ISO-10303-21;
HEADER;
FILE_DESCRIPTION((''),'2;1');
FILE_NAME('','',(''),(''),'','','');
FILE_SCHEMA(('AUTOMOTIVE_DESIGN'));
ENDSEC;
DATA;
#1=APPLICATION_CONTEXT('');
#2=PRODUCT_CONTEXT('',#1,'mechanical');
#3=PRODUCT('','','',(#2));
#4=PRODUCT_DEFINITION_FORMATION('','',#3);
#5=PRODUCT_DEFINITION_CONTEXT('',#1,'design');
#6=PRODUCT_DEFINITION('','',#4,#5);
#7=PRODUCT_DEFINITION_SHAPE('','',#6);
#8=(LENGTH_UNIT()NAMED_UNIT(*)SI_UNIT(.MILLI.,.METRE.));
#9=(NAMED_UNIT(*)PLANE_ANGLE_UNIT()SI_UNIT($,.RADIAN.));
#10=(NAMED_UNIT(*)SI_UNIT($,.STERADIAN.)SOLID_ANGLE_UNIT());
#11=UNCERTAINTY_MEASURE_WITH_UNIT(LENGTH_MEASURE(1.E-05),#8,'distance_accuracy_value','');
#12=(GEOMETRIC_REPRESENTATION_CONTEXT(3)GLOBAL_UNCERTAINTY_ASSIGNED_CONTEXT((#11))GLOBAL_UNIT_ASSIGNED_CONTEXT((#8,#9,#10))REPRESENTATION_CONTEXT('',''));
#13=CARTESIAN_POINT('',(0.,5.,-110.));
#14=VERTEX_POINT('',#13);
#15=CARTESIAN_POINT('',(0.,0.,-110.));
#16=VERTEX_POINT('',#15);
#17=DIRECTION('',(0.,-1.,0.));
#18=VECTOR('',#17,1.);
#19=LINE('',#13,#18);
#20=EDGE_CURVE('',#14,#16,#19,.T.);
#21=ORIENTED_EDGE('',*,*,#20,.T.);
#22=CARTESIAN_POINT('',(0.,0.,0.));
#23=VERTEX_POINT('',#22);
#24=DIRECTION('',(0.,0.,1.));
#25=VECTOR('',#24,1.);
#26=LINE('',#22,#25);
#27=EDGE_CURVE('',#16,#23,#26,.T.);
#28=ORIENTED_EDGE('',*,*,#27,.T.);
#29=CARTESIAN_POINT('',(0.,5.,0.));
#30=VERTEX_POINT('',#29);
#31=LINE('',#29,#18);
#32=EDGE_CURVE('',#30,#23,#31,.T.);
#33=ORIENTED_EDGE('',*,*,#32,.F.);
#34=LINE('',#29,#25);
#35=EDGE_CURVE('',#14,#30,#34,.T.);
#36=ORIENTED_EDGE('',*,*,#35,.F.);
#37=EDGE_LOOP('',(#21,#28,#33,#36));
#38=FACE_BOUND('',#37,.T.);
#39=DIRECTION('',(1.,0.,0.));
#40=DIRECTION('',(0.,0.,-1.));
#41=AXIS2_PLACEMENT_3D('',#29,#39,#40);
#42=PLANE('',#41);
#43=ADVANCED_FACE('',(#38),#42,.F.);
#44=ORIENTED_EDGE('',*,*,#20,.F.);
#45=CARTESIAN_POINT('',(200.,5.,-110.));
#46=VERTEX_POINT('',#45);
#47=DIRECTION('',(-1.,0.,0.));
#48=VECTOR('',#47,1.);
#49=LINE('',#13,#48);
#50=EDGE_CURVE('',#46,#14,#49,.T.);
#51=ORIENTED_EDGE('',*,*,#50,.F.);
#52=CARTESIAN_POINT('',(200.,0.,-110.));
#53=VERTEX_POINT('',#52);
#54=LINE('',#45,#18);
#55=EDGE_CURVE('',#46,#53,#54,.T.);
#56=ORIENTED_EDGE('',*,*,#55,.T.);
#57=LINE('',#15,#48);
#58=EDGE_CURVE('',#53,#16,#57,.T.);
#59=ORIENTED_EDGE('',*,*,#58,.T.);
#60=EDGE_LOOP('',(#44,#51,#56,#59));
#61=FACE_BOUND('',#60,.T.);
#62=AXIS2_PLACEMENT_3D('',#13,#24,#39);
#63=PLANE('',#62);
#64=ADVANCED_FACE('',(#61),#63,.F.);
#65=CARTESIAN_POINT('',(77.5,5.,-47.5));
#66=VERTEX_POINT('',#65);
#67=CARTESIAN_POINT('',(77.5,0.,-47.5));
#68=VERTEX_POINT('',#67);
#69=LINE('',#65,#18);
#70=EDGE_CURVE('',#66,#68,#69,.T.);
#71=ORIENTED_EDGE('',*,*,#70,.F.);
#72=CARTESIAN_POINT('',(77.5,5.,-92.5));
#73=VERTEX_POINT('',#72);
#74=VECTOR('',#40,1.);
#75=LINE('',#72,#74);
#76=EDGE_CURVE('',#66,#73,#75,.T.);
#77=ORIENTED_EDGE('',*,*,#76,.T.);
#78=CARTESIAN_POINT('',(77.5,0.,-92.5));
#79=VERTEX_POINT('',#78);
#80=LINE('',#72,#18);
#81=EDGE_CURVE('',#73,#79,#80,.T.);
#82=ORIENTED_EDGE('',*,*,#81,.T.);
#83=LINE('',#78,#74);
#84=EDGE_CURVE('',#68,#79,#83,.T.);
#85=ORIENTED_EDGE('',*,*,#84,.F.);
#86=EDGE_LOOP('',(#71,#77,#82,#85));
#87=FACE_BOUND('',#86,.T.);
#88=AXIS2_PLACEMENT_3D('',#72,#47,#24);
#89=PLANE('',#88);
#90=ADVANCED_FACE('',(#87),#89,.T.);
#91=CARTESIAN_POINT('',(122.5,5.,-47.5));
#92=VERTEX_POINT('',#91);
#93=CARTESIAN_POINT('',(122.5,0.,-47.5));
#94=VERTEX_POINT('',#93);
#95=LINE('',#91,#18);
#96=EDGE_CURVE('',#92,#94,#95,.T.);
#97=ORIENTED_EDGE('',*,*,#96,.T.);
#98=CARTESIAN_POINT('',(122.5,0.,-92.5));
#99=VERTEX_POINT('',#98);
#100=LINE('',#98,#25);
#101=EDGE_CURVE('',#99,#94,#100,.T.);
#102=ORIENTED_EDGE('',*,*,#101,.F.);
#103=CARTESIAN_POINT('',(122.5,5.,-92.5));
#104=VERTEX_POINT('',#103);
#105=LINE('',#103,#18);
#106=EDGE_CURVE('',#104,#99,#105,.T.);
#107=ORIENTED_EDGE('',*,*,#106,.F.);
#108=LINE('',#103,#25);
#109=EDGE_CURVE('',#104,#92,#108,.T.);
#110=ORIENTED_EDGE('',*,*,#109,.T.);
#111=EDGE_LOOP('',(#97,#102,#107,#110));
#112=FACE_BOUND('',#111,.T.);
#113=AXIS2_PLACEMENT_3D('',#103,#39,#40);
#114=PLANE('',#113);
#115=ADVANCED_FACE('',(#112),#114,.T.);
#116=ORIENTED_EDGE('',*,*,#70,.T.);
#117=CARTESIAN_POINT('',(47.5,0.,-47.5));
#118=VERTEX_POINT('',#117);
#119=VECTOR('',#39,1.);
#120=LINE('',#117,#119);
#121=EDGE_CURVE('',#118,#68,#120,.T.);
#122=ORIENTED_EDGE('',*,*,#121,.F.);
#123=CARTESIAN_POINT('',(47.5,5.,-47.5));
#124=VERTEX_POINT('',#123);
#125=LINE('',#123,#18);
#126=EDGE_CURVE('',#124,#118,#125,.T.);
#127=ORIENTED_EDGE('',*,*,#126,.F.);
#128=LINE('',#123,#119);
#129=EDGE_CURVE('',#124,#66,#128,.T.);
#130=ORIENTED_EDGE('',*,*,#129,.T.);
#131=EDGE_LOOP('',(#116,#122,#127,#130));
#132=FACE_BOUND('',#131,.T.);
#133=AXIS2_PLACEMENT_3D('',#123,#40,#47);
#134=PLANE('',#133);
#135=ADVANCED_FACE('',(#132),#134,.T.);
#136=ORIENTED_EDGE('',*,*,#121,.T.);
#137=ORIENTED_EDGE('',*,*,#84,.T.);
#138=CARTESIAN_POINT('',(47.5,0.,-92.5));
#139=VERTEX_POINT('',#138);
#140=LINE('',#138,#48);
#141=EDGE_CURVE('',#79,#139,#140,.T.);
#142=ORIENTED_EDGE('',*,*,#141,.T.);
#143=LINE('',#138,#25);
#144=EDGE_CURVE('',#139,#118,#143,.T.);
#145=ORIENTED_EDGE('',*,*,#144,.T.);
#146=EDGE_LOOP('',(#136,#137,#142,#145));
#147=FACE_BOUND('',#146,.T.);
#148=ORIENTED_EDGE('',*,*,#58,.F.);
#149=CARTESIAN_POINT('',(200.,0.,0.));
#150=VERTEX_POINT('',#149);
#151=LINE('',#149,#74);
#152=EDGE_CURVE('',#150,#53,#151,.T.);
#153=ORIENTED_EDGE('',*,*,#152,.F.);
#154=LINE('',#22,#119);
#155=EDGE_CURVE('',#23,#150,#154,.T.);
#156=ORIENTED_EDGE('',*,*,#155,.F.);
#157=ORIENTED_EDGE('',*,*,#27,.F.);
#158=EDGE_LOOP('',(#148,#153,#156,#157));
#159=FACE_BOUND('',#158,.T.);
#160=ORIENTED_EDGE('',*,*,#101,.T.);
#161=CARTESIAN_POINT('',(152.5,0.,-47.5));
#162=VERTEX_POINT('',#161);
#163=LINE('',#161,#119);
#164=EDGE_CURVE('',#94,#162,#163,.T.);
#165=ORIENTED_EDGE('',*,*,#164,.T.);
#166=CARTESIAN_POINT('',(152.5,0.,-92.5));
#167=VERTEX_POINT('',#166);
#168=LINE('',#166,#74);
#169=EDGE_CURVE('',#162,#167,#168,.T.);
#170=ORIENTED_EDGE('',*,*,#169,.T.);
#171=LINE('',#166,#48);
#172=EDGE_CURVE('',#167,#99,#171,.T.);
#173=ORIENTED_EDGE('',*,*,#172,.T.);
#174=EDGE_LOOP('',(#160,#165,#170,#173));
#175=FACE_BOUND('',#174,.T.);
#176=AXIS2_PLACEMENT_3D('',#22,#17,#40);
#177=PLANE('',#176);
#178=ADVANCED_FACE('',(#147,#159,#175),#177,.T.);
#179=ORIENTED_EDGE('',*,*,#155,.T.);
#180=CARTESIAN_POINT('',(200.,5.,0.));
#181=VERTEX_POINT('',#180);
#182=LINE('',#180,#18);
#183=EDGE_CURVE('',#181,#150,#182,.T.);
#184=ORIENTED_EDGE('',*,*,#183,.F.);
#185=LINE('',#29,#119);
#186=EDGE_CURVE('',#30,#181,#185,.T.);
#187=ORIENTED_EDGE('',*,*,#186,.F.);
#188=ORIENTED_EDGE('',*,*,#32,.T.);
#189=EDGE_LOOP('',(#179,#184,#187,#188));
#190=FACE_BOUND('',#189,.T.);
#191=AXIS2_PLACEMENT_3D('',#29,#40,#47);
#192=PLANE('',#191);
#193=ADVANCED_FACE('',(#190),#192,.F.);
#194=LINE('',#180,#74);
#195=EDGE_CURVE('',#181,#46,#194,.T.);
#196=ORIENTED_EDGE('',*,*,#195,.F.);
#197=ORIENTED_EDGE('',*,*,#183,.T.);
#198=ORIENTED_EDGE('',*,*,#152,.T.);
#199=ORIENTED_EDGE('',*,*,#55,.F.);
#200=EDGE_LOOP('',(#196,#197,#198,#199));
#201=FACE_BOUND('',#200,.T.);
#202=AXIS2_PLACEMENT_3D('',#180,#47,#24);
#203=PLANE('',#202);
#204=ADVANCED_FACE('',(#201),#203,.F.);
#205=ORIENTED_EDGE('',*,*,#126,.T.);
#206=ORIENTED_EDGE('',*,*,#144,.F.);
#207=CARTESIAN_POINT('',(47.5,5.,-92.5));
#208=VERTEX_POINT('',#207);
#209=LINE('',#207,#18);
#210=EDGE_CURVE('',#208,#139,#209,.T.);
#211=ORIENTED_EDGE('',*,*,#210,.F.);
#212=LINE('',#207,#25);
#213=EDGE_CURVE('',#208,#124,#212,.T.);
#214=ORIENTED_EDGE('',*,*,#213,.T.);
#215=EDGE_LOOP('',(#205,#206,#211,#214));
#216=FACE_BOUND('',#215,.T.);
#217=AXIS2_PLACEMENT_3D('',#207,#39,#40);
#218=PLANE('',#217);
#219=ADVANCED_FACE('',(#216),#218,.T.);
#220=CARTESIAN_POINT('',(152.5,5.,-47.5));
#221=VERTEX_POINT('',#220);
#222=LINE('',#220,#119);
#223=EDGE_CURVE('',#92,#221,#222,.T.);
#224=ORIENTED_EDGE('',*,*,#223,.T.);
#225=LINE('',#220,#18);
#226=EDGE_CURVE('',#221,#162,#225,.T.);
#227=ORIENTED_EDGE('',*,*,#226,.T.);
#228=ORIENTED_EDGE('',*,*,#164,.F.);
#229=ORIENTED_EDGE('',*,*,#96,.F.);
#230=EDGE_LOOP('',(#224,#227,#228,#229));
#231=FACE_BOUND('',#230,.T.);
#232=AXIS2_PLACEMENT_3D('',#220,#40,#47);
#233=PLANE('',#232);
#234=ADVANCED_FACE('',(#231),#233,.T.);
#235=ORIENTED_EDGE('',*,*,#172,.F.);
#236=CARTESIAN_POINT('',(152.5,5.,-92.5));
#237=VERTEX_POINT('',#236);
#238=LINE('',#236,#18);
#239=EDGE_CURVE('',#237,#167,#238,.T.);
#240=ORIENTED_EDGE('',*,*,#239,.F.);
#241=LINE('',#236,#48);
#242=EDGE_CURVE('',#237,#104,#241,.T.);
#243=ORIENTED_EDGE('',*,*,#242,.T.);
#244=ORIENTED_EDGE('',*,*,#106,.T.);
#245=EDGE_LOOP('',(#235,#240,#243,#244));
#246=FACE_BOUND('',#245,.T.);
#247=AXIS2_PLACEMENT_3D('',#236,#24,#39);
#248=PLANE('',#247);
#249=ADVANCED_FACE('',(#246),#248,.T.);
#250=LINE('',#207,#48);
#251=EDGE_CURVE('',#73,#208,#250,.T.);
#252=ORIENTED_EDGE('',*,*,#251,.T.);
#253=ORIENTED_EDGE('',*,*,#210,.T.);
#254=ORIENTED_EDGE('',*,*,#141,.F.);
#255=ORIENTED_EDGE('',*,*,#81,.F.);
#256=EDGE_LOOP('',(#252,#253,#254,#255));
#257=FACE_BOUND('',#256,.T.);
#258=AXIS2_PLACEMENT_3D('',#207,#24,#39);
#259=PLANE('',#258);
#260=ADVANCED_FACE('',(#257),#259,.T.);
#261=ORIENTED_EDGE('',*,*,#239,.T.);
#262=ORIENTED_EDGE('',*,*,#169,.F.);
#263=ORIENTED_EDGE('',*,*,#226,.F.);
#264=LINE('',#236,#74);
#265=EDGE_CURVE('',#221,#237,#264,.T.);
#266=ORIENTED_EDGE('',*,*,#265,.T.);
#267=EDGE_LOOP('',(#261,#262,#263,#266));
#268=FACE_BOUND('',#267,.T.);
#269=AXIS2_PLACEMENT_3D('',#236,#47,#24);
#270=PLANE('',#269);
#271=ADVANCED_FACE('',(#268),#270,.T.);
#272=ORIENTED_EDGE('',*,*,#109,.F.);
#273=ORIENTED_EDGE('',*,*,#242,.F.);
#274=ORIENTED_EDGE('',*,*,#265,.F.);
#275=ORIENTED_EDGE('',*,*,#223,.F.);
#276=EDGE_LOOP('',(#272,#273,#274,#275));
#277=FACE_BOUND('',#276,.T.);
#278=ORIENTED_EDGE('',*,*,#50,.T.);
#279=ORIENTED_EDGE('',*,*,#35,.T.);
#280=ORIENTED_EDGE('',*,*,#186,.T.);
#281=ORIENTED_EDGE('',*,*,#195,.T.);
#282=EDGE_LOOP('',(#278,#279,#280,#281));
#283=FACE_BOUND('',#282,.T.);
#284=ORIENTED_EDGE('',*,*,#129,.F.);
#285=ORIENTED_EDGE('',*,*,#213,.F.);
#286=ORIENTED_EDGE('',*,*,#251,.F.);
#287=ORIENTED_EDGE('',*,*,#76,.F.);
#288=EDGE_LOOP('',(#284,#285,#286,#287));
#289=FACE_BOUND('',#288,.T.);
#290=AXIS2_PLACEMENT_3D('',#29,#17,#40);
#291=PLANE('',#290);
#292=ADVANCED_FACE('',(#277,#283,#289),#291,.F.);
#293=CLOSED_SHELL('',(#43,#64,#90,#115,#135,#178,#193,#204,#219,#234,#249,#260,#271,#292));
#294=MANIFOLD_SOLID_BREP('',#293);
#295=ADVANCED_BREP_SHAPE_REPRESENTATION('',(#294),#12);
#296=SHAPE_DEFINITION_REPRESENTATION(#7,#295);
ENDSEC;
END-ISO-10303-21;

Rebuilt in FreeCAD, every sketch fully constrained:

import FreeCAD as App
import Part
import Sketcher

V = App.Vector
Q = App.Units.Quantity

doc = App.newDocument("Part")
body = doc.addObject("PartDesign::Body", "Body")

sketch1 = body.newObject("Sketcher::SketchObject", "Sketch")
sketch1.AttachmentSupport = (doc.getObject("XZ_Plane"), [""])
sketch1.MapMode = "FlatFace"
sketch1.addGeometry([
    Part.LineSegment(V(0, -110, 0), V(0, 0, 0)),
    Part.LineSegment(V(0, 0, 0), V(200, 0, 0)),
    Part.LineSegment(V(200, 0, 0), V(200, -110, 0)),
    Part.LineSegment(V(200, -110, 0), V(0, -110, 0)),
    Part.LineSegment(V(78, -48, 0), V(48, -48, 0)),
    Part.LineSegment(V(48, -48, 0), V(48, -92, 0)),
    Part.LineSegment(V(48, -92, 0), V(78, -92, 0)),
    Part.LineSegment(V(78, -92, 0), V(78, -48, 0)),
    Part.LineSegment(V(152, -48, 0), V(122, -48, 0)),
    Part.LineSegment(V(122, -48, 0), V(122, -92, 0)),
    Part.LineSegment(V(122, -92, 0), V(152, -92, 0)),
    Part.LineSegment(V(152, -92, 0), V(152, -48, 0)),
], False)
sketch1.addConstraint([
    Sketcher.Constraint("Coincident", 0, 2, 1, 1),
    Sketcher.Constraint("Coincident", 1, 2, 2, 1),
    Sketcher.Constraint("Coincident", 2, 2, 3, 1),
    Sketcher.Constraint("Coincident", 3, 2, 0, 1),
    Sketcher.Constraint("Coincident", 4, 2, 5, 1),
    Sketcher.Constraint("Coincident", 5, 2, 6, 1),
    Sketcher.Constraint("Coincident", 6, 2, 7, 1),
    Sketcher.Constraint("Coincident", 7, 2, 4, 1),
    Sketcher.Constraint("Coincident", 8, 2, 9, 1),
    Sketcher.Constraint("Coincident", 9, 2, 10, 1),
    Sketcher.Constraint("Coincident", 10, 2, 11, 1),
    Sketcher.Constraint("Coincident", 11, 2, 8, 1),
    Sketcher.Constraint("Vertical", 0),
    Sketcher.Constraint("Horizontal", 1),
    Sketcher.Constraint("Vertical", 2),
    Sketcher.Constraint("Horizontal", 3),
    Sketcher.Constraint("Horizontal", 4),
    Sketcher.Constraint("Vertical", 5),
    Sketcher.Constraint("Horizontal", 6),
    Sketcher.Constraint("Vertical", 7),
    Sketcher.Constraint("Horizontal", 8),
    Sketcher.Constraint("Vertical", 9),
    Sketcher.Constraint("Horizontal", 10),
    Sketcher.Constraint("Vertical", 11),
    Sketcher.Constraint("Coincident", 0, 2, -1, 1),
    Sketcher.Constraint("Horizontal", 7, 2, 8, 2),
    Sketcher.Constraint("Horizontal", 6, 2, 9, 2),
    Sketcher.Constraint("Equal", 6, 8),
    Sketcher.Constraint("DistanceX", 1, 1, 1, 2, Q("200 mm")),
    Sketcher.Constraint("DistanceX", 4, 2, 4, 1, Q("30 mm")),
    Sketcher.Constraint("DistanceY", 0, 1, 0, 2, Q("110 mm")),
    Sketcher.Constraint("DistanceY", 5, 2, 5, 1, Q("45 mm")),
    Sketcher.Constraint("DistanceX", 7, 2, 8, 2, Q("45 mm")),
    Sketcher.Constraint("DistanceX", -1, 1, 4, 2, Q("47.5 mm")),
    Sketcher.Constraint("DistanceY", 4, 2, -1, 1, Q("47.5 mm")),
])
pad1 = body.newObject("PartDesign::Pad", "Pad")
pad1.Profile = sketch1
pad1.Length = 5
pad1.Reversed = True

doc.recompute()
